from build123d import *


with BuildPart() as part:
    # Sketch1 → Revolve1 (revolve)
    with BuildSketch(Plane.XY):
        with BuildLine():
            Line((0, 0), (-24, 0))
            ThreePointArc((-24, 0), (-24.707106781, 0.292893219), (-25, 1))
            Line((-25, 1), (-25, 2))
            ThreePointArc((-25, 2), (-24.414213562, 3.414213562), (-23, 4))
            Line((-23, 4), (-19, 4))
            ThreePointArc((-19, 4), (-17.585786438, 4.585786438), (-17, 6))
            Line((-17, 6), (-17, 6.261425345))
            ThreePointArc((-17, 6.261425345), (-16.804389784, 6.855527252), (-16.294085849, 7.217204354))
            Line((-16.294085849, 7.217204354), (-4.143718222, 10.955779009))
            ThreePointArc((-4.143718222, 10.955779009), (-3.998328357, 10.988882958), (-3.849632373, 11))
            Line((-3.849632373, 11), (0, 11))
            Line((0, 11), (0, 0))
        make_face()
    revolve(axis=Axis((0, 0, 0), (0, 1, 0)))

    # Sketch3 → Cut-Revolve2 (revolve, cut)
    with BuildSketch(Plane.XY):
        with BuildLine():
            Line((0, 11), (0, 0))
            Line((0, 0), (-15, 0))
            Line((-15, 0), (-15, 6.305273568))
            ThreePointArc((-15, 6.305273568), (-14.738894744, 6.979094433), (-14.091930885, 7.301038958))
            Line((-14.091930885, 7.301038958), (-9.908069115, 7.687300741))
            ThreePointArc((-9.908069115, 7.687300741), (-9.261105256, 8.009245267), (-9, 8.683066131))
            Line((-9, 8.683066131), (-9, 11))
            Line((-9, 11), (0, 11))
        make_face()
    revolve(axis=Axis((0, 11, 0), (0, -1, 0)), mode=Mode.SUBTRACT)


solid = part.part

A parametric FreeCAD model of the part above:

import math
import FreeCAD as App
import Part
import Sketcher

V = App.Vector
Q = App.Units.Quantity

doc = App.newDocument("Part")
params = doc.addObject("Spreadsheet::Sheet", "Params")
for row, (alias, value) in enumerate([
    ("sketch1_radius", "1 mm"),
    ("sketch1_radius2", "2 mm"),
    ("sketch1_width", "24 mm"),
    ("sketch1_width2", "4 mm"),
    ("sketch1_height", "11 mm"),
    ("revolution_angle", "360 deg"),
    ("sketch2_radius", "1 mm"),
    ("sketch2_width", "9 mm"),
    ("sketch2_width2", "15 mm"),
    ("sketch2_height", "11 mm"),
    ("groove_angle", "360 deg"),
], start=1):
    params.set(f"A{row}", alias)
    params.set(f"B{row}", "=" + value)
    params.setAlias(f"B{row}", alias)

body = doc.addObject("PartDesign::Body", "Body")

# Sketch on XY plane
sketch1 = body.newObject("Sketcher::SketchObject", "Sketch")
sketch1.AttachmentSupport = (doc.getObject("XY_Plane"), [""])
sketch1.MapMode = "FlatFace"
sketch1.addGeometry(Part.LineSegment(V(-24, 0, 0), V(0, 0, 0)), False)
sketch1.addGeometry(Part.LineSegment(V(0, 0, 0), V(0, 11, 0)), False)
sketch1.addGeometry(Part.LineSegment(V(0, 11, 0), V(-3.849632, 11, 0)), False)
sketch1.addGeometry(Part.ArcOfCircle(Part.Circle(V(-3.849632, 10, 0), V(0, 0, 1), 1), math.radians(90), math.radians(107.102729)), False)
sketch1.addGeometry(Part.LineSegment(V(-4.143718, 10.955779, 0), V(-16.294086, 7.217204, 0)), False)
sketch1.addGeometry(Part.ArcOfCircle(Part.Circle(V(-16, 6.261425, 0), V(0, 0, 1), 1), math.radians(107.102729), math.radians(180)), False)
sketch1.addGeometry(Part.LineSegment(V(-17, 6.261425, 0), V(-17, 6, 0)), False)
sketch1.addGeometry(Part.ArcOfCircle(Part.Circle(V(-19, 6, 0), V(0, 0, 1), 2), math.radians(-90), math.radians(0)), False)
sketch1.addGeometry(Part.LineSegment(V(-19, 4, 0), V(-23, 4, 0)), False)
sketch1.addGeometry(Part.ArcOfCircle(Part.Circle(V(-23, 2, 0), V(0, 0, 1), 2), math.radians(90), math.radians(180)), False)
sketch1.addGeometry(Part.LineSegment(V(-25, 2, 0), V(-25, 1, 0)), False)
sketch1.addGeometry(Part.ArcOfCircle(Part.Circle(V(-24, 1, 0), V(0, 0, 1), 1), math.radians(-180), math.radians(-90)), False)
sketch1.addConstraint(Sketcher.Constraint("Coincident", 0, 2, 1, 1))
sketch1.addConstraint(Sketcher.Constraint("Coincident", 1, 2, 2, 1))
sketch1.addConstraint(Sketcher.Constraint("Tangent", 2, 2, 3, 1))
sketch1.addConstraint(Sketcher.Constraint("Tangent", 3, 2, 4, 1))
sketch1.addConstraint(Sketcher.Constraint("Tangent", 4, 2, 5, 1))
sketch1.addConstraint(Sketcher.Constraint("Tangent", 5, 2, 6, 1))
sketch1.addConstraint(Sketcher.Constraint("Tangent", 6, 2, 7, 2))
sketch1.addConstraint(Sketcher.Constraint("Tangent", 7, 1, 8, 1))
sketch1.addConstraint(Sketcher.Constraint("Tangent", 8, 2, 9, 1))
sketch1.addConstraint(Sketcher.Constraint("Tangent", 9, 2, 10, 1))
sketch1.addConstraint(Sketcher.Constraint("Tangent", 10, 2, 11, 1))
sketch1.addConstraint(Sketcher.Constraint("Tangent", 11, 2, 0, 1))
sketch1.addConstraint(Sketcher.Constraint("Horizontal", 0))
sketch1.addConstraint(Sketcher.Constraint("Vertical", 1))
sketch1.addConstraint(Sketcher.Constraint("Horizontal", 2))
sketch1.addConstraint(Sketcher.Constraint("Vertical", 6))
sketch1.addConstraint(Sketcher.Constraint("Horizontal", 8))
sketch1.addConstraint(Sketcher.Constraint("Vertical", 10))
sketch1.addConstraint(Sketcher.Constraint("Coincident", 0, 2, -1, 1))
sketch1.addConstraint(Sketcher.Constraint("Equal", 3, 5))
sketch1.addConstraint(Sketcher.Constraint("Equal", 7, 9))
sketch1.addConstraint(Sketcher.Constraint("Equal", 5, 11))
sketch1.addConstraint(Sketcher.Constraint("Radius", 3, Q("1 mm")))
sketch1.addConstraint(Sketcher.Constraint("Radius", 7, Q("2 mm")))
sketch1.addConstraint(Sketcher.Constraint("DistanceX", 0, 1, 0, 2, Q("24 mm")))
sketch1.addConstraint(Sketcher.Constraint("DistanceX", 8, 2, 8, 1, Q("4 mm")))
sketch1.addConstraint(Sketcher.Constraint("DistanceY", 1, 1, 1, 2, Q("11 mm")))
sketch1.addConstraint(Sketcher.Constraint("DistanceY", 10, 2, 10, 1, Q("1 mm")))
sketch1.addConstraint(Sketcher.Constraint("Distance", 4, Q("12.712528 mm")))
sketch1.addConstraint(Sketcher.Constraint("DistanceX", 2, 2, 2, 1, Q("3.849632 mm")))
sketch1.setExpression("Constraints[22]", "Params.sketch1_radius")
sketch1.setExpression("Constraints[23]", "Params.sketch1_radius2")
sketch1.setExpression("Constraints[24]", "Params.sketch1_width")
sketch1.setExpression("Constraints[25]", "Params.sketch1_width2")
sketch1.setExpression("Constraints[26]", "Params.sketch1_height")
revolution = body.newObject("PartDesign::Revolution", "Revolution")
revolution.Profile = sketch1
revolution.ReferenceAxis = (sketch1, ["V_Axis"])
revolution.setExpression("Angle", "Params.revolution_angle")

# Sketch on XY plane
sketch2 = body.newObject("Sketcher::SketchObject", "Sketch001")
sketch2.AttachmentSupport = (doc.getObject("XY_Plane"), [""])
sketch2.MapMode = "FlatFace"
sketch2.addGeometry(Part.LineSegment(V(0, 0, 0), V(0, 11, 0)), False)
sketch2.addGeometry(Part.LineSegment(V(0, 11, 0), V(-9, 11, 0)), False)
sketch2.addGeometry(Part.LineSegment(V(-9, 11, 0), V(-9, 8.683066, 0)), False)
sketch2.addGeometry(Part.ArcOfCircle(Part.Circle(V(-10, 8.683066, 0), V(0, 0, 1), 1), math.radians(-84.725301), math.radians(0)), False)
sketch2.addGeometry(Part.LineSegment(V(-9.908069, 7.687301, 0), V(-14.091931, 7.301039, 0)), False)
sketch2.addGeometry(Part.ArcOfCircle(Part.Circle(V(-14, 6.305274, 0), V(0, 0, 1), 1), math.radians(95.274699), math.radians(180)), False)
sketch2.addGeometry(Part.LineSegment(V(-15, 6.305274, 0), V(-15, 0, 0)), False)
sketch2.addGeometry(Part.LineSegment(V(-15, 0, 0), V(0, 0, 0)), False)
sketch2.addConstraint(Sketcher.Constraint("Coincident", 0, 2, 1, 1))
sketch2.addConstraint(Sketcher.Constraint("Coincident", 1, 2, 2, 1))
sketch2.addConstraint(Sketcher.Constraint("Tangent", 2, 2, 3, 2))
sketch2.addConstraint(Sketcher.Constraint("Tangent", 3, 1, 4, 1))
sketch2.addConstraint(Sketcher.Constraint("Tangent", 4, 2, 5, 1))
sketch2.addConstraint(Sketcher.Constraint("Tangent", 5, 2, 6, 1))
sketch2.addConstraint(Sketcher.Constraint("Coincident", 6, 2, 7, 1))
sketch2.addConstraint(Sketcher.Constraint("Coincident", 7, 2, 0, 1))
sketch2.addConstraint(Sketcher.Constraint("Vertical", 0))
sketch2.addConstraint(Sketcher.Constraint("Horizontal", 1))
sketch2.addConstraint(Sketcher.Constraint("Vertical", 2))
sketch2.addConstraint(Sketcher.Constraint("Vertical", 6))
sketch2.addConstraint(Sketcher.Constraint("Horizontal", 7))
sketch2.addConstraint(Sketcher.Constraint("Coincident", 7, 2, -1, 1))
sketch2.addConstraint(Sketcher.Constraint("Equal", 3, 5))
sketch2.addConstraint(Sketcher.Constraint("Radius", 3, Q("1 mm")))
sketch2.addConstraint(Sketcher.Constraint("DistanceX", 1, 2, 1, 1, Q("9 mm")))
sketch2.addConstraint(Sketcher.Constraint("DistanceX", 7, 1, 7, 2, Q("15 mm")))
sketch2.addConstraint(Sketcher.Constraint("DistanceY", 0, 1, 0, 2, Q("11 mm")))
sketch2.addConstraint(Sketcher.Constraint("DistanceY", -1, 1, 3, 1, Q("7.687301 mm")))
sketch2.addConstraint(Sketcher.Constraint("DistanceY", 2, 2, 2, 1, Q("2.316934 mm")))
sketch2.setExpression("Constraints[15]", "Params.sketch2_radius")
sketch2.setExpression("Constraints[16]", "Params.sketch2_width")
sketch2.setExpression("Constraints[17]", "Params.sketch2_width2")
sketch2.setExpression("Constraints[18]", "Params.sketch2_height")
groove = body.newObject("PartDesign::Groove", "Groove")
groove.Profile = sketch2
groove.ReferenceAxis = (sketch2, ["V_Axis"])
groove.setExpression("Angle", "Params.groove_angle")

doc.recompute()
